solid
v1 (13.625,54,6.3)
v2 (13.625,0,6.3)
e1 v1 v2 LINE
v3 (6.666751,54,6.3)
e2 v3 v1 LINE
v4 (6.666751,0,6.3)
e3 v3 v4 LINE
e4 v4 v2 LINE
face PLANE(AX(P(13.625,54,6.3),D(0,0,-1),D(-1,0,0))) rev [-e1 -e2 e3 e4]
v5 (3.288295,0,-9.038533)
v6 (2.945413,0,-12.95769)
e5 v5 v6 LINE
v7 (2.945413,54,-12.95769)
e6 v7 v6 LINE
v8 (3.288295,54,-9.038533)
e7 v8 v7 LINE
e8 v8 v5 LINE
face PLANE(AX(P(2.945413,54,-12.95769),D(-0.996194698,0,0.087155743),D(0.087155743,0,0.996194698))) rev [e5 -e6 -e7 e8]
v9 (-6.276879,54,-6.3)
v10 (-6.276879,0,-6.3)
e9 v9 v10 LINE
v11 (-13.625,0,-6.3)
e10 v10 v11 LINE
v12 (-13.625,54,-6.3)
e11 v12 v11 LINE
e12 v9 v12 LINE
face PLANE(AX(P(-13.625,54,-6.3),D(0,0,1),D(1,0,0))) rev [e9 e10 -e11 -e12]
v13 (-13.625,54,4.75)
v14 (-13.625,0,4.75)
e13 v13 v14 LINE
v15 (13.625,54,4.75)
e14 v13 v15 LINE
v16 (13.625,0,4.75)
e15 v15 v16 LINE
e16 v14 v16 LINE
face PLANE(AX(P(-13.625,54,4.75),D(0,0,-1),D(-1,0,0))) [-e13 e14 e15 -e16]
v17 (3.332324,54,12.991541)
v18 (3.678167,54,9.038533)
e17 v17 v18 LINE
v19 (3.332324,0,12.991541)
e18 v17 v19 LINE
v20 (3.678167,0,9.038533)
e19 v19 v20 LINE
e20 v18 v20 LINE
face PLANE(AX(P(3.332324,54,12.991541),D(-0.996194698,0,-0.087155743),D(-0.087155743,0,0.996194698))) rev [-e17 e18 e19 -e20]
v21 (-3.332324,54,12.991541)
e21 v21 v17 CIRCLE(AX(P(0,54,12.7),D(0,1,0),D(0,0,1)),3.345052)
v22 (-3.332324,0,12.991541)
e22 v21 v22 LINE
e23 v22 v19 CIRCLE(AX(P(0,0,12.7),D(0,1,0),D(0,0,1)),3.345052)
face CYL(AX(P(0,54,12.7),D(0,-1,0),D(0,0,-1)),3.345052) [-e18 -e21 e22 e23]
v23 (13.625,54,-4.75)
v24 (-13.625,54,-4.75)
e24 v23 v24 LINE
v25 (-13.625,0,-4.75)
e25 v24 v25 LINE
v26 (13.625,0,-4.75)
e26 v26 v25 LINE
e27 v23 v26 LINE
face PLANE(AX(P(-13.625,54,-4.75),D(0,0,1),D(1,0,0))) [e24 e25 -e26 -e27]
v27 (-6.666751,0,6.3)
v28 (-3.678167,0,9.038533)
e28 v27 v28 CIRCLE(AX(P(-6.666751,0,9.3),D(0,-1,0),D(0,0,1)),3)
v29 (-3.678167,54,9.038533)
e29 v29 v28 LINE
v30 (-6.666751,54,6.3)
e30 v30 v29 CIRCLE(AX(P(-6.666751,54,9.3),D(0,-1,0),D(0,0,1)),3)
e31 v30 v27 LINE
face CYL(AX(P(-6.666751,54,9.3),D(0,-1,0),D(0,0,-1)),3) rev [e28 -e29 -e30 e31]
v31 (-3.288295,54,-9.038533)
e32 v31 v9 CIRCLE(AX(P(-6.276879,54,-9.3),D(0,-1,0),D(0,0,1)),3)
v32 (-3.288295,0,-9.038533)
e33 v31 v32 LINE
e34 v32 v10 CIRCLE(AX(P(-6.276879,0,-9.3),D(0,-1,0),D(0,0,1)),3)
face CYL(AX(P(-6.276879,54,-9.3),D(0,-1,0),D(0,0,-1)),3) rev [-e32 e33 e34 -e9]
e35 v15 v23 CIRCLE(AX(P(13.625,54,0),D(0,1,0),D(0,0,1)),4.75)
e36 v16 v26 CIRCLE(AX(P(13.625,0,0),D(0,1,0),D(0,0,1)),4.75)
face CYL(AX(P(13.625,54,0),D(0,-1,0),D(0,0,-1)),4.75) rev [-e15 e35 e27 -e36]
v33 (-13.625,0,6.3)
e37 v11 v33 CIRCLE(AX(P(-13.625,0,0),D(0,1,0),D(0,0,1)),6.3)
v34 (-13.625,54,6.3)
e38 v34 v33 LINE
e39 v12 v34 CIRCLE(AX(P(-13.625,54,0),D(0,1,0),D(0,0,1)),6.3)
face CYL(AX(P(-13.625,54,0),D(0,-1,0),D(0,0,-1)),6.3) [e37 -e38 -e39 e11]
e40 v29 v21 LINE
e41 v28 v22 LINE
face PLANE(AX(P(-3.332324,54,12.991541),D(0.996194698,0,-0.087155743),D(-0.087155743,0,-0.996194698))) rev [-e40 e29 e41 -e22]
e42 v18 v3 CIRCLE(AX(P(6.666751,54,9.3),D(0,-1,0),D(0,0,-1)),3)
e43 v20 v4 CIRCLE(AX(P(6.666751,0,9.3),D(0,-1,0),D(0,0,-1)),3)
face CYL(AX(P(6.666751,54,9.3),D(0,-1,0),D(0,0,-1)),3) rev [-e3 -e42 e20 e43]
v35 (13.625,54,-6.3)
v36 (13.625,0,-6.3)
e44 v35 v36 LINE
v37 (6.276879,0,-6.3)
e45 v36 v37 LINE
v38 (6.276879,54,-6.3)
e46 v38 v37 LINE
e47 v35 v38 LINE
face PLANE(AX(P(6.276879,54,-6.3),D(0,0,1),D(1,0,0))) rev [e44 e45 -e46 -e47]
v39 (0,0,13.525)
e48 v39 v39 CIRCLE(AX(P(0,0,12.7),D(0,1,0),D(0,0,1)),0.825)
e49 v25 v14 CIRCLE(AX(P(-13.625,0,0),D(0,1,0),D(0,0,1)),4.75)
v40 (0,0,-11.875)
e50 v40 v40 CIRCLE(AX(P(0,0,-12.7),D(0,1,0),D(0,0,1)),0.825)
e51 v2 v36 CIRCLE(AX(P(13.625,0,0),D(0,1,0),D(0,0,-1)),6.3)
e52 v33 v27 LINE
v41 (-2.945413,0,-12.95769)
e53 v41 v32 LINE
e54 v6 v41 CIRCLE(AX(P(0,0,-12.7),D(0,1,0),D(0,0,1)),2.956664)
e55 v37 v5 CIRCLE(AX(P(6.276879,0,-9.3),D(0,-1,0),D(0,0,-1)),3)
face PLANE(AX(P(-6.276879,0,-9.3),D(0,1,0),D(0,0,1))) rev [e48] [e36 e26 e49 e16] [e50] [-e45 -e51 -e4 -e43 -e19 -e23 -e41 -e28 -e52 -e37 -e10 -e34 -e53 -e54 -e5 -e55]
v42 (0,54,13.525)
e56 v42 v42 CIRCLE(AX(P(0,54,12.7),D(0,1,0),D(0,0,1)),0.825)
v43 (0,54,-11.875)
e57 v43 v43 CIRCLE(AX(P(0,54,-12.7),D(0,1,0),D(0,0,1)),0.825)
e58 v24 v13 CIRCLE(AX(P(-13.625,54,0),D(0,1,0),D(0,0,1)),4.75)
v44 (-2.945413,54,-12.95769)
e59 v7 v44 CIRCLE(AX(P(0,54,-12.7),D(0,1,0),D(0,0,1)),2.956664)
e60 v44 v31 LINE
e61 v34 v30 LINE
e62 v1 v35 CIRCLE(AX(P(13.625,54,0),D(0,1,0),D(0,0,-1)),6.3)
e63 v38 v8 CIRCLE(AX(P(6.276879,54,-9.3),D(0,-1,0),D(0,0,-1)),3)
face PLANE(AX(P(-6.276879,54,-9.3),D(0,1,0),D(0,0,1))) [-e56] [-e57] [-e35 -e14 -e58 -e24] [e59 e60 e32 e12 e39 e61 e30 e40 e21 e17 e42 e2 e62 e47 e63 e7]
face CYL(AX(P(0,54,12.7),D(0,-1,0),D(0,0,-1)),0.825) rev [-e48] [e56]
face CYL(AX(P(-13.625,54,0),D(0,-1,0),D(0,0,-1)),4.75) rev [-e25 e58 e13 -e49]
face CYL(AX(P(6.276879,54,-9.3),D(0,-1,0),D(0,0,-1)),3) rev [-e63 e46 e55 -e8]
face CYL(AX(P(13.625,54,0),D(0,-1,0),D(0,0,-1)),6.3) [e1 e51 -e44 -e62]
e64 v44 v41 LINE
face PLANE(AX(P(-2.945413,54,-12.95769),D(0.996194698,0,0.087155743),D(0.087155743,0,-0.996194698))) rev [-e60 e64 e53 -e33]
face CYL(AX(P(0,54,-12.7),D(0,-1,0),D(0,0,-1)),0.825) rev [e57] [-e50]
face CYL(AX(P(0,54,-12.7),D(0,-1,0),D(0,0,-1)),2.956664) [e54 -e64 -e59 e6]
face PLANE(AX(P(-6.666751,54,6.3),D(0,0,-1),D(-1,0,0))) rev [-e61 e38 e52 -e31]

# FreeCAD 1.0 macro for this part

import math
import FreeCAD as App
import Part
import Sketcher
from FreeCAD import Vector
Q = App.Units.Quantity

doc = App.newDocument("Part")
params = doc.addObject("Spreadsheet::Sheet", "Params")
for row, (alias, value) in enumerate([
    ("sketch1_radius", "3 mm"),
    ("sketch1_radius2", "6.3 mm"),
    ("sketch1_diameter", "1.65 mm"),
    ("sketch1_radius3", "4.75 mm"),
    ("sketch1_width", "27.25 mm"),
    ("pad1_length", "54 mm"),
], start=1):
    params.set(f"A{row}", alias)
    params.set(f"B{row}", "=" + value)
    params.setAlias(f"B{row}", alias)

body = doc.addObject("PartDesign::Body", "Body")

sketch1 = body.newObject("Sketcher::SketchObject", "Sketch")
sketch1.AttachmentSupport = (doc.getObject("XZ_Plane"), [""])
sketch1.MapMode = "FlatFace"
sketch1.addGeometry([
    Part.LineSegment(Vector(-2.9, -13, 0), Vector(-3.3, -9, 0)),
    Part.ArcOfCircle(Part.Circle(Vector(-6.3, -9.3, 0), Vector(0, 0, 1), 3), math.radians(5), math.radians(90)),
    Part.LineSegment(Vector(-6.3, -6.3, 0), Vector(-13.6, -6.3, 0)),
    Part.ArcOfCircle(Part.Circle(Vector(-13.6, 0, 0), Vector(0, 0, 1), 6.3), math.radians(90), math.radians(270)),
    Part.LineSegment(Vector(-13.6, 6.3, 0), Vector(-6.7, 6.3, 0)),
    Part.ArcOfCircle(Part.Circle(Vector(-6.7, 9.3, 0), Vector(0, 0, 1), 3), math.radians(-90), math.radians(-5)),
    Part.LineSegment(Vector(-3.7, 9, 0), Vector(-3.3, 13, 0)),
    Part.ArcOfCircle(Part.Circle(Vector(0, 12.7, 0), Vector(0, 0, 1), 3.3), math.radians(5), math.radians(175)),
    Part.LineSegment(Vector(3.3, 13, 0), Vector(3.7, 9, 0)),
    Part.ArcOfCircle(Part.Circle(Vector(6.7, 9.3, 0), Vector(0, 0, 1), 3), math.radians(-175), math.radians(-90)),
    Part.LineSegment(Vector(6.7, 6.3, 0), Vector(13.6, 6.3, 0)),
    Part.ArcOfCircle(Part.Circle(Vector(13.6, 0, 0), Vector(0, 0, 1), 6.3), math.radians(-90), math.radians(90)),
    Part.LineSegment(Vector(13.6, -6.3, 0), Vector(6.3, -6.3, 0)),
    Part.ArcOfCircle(Part.Circle(Vector(6.3, -9.3, 0), Vector(0, 0, 1), 3), math.radians(90), math.radians(175)),
    Part.LineSegment(Vector(3.3, -9, 0), Vector(2.9, -13, 0)),
    Part.ArcOfCircle(Part.Circle(Vector(0, -12.7, 0), Vector(0, 0, 1), 3), math.radians(-175), math.radians(-5)),
    Part.Circle(Vector(0, 12.7, 0), Vector(0, 0, 1), 0.8),
    Part.ArcOfCircle(Part.Circle(Vector(-13.6, 0, 0), Vector(0, 0, 1), 4.8), math.radians(90), math.radians(270)),
    Part.LineSegment(Vector(-13.6, -4.8, 0), Vector(13.6, -4.8, 0)),
    Part.ArcOfCircle(Part.Circle(Vector(13.6, 0, 0), Vector(0, 0, 1), 4.8), math.radians(-90), math.radians(90)),
    Part.LineSegment(Vector(13.6, 4.8, 0), Vector(-13.6, 4.8, 0)),
    Part.Circle(Vector(0, -12.7, 0), Vector(0, 0, 1), 0.8),
], False)
sketch1.addConstraint([
    Sketcher.Constraint("Tangent", 0, 2, 1, 1),
    Sketcher.Constraint("Tangent", 1, 2, 2, 1),
    Sketcher.Constraint("Tangent", 2, 2, 3, 2),
    Sketcher.Constraint("Tangent", 3, 1, 4, 1),
    Sketcher.Constraint("Tangent", 4, 2, 5, 1),
    Sketcher.Constraint("Tangent", 5, 2, 6, 1),
    Sketcher.Constraint("Tangent", 6, 2, 7, 2),
    Sketcher.Constraint("Tangent", 7, 1, 8, 1),
    Sketcher.Constraint("Tangent", 8, 2, 9, 1),
    Sketcher.Constraint("Tangent", 9, 2, 10, 1),
    Sketcher.Constraint("Tangent", 10, 2, 11, 2),
    Sketcher.Constraint("Tangent", 11, 1, 12, 1),
    Sketcher.Constraint("Tangent", 12, 2, 13, 1),
    Sketcher.Constraint("Tangent", 13, 2, 14, 1),
    Sketcher.Constraint("Tangent", 14, 2, 15, 2),
    Sketcher.Constraint("Tangent", 15, 1, 0, 1),
    Sketcher.Constraint("Tangent", 17, 2, 18, 1),
    Sketcher.Constraint("Tangent", 18, 2, 19, 1),
    Sketcher.Constraint("Tangent", 19, 2, 20, 1),
    Sketcher.Constraint("Tangent", 20, 2, 17, 1),
    Sketcher.Constraint("Horizontal", 2),
    Sketcher.Constraint("Horizontal", 4),
    Sketcher.Constraint("Horizontal", 10),
    Sketcher.Constraint("Horizontal", 12),
    Sketcher.Constraint("Horizontal", 18),
    Sketcher.Constraint("Horizontal", 20),
    Sketcher.Constraint("Coincident", 16, 3, 7, 3),
    Sketcher.Constraint("Coincident", 17, 3, 3, 3),
    Sketcher.Constraint("Coincident", 19, 3, 11, 3),
    Sketcher.Constraint("Coincident", 21, 3, 15, 3),
    Sketcher.Constraint("Equal", 1, 5),
    Sketcher.Constraint("Equal", 5, 9),
    Sketcher.Constraint("Equal", 3, 11),
    Sketcher.Constraint("Equal", 9, 13),
    Sketcher.Constraint("Equal", 16, 21),
    Sketcher.Constraint("Symmetric", 3, 3, 11, 3, -1, 1),
    Sketcher.Constraint("Symmetric", 7, 3, 15, 3, -1, 1),
    Sketcher.Constraint("Symmetric", 6, 2, 7, 1, -2),
    Sketcher.Constraint("Parallel", 0, 8),
    Sketcher.Constraint("Parallel", 6, 14),
    Sketcher.Constraint("Radius", 1, 3.0),
    Sketcher.Constraint("Radius", 3, 6.3),
    Sketcher.Constraint("Diameter", 16, 1.65),
    Sketcher.Constraint("Angle", 0, Q("95 deg")),
    Sketcher.Constraint("Radius", 17, 4.75),
    Sketcher.Constraint("DistanceY", 1, 3, 7, 3, 22.0),
    Sketcher.Constraint("DistanceX", 18, 1, 18, 2, 27.25),
    Sketcher.Constraint("Radius", 7, 3.345052),
    Sketcher.Constraint("Radius", 15, 2.956664),
])
sketch1.setExpression("Constraints[40]", "Params.sketch1_radius")
sketch1.setExpression("Constraints[41]", "Params.sketch1_radius2")
sketch1.setExpression("Constraints[42]", "Params.sketch1_diameter")
sketch1.setExpression("Constraints[44]", "Params.sketch1_radius3")
sketch1.setExpression("Constraints[46]", "Params.sketch1_width")
pad1 = body.newObject("PartDesign::Pad", "Pad")
pad1.Profile = sketch1
pad1.setExpression("Length", "Params.pad1_length")
pad1.Reversed = True

doc.recompute()
